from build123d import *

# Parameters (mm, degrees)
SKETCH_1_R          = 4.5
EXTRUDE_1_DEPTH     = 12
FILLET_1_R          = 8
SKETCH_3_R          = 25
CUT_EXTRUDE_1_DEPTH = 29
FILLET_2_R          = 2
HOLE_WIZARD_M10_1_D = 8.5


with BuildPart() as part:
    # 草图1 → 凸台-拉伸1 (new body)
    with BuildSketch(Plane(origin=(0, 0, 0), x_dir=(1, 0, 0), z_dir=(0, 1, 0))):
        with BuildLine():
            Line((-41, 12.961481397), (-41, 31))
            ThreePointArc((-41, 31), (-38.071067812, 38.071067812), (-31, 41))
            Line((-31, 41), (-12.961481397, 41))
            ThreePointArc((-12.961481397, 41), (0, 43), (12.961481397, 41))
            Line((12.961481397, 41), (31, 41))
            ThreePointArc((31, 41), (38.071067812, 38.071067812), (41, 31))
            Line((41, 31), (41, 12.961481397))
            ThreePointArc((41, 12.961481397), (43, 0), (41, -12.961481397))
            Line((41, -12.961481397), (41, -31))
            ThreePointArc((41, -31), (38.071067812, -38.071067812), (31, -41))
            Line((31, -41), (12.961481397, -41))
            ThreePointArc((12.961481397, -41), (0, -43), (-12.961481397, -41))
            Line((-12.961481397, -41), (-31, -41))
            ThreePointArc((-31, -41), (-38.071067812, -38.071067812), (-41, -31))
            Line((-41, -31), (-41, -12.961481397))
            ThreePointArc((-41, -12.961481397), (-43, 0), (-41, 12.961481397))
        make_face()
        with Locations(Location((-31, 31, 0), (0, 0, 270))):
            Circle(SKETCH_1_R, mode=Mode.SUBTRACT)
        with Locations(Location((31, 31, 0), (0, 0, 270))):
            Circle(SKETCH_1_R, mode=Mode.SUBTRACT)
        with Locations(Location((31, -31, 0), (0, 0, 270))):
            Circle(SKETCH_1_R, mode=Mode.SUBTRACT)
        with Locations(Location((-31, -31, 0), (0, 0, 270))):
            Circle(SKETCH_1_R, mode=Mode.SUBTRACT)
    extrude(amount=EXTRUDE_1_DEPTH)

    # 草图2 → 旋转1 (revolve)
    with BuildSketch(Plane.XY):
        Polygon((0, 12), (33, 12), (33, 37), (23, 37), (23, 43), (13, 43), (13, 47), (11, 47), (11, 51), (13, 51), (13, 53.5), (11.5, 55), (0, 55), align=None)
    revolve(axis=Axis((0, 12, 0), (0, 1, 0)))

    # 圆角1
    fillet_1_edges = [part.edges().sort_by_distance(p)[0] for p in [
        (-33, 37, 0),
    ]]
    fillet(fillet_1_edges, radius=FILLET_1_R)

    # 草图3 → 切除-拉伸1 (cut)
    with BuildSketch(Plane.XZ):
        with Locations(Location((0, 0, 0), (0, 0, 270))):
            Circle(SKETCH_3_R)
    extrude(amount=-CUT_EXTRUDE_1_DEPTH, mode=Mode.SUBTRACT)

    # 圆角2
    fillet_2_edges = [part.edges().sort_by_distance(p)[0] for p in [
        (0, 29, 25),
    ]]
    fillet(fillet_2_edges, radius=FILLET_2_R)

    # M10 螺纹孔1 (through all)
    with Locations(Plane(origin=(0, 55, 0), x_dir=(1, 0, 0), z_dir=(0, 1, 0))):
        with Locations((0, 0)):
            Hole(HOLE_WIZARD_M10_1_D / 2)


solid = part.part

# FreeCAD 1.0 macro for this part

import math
import FreeCAD as App
import Part
import Sketcher

V = App.Vector
Q = App.Units.Quantity


def edges_at(feature, points):
    """Names of the edges that pass closest to the given points."""
    edges = feature.Shape.Edges
    near = lambda p: min(range(len(edges)), key=lambda i: edges[i].distToShape(Part.Vertex(*p))[0])
    return sorted({f"Edge{near(p) + 1}" for p in points})

doc = App.newDocument("Part")
params = doc.addObject("Spreadsheet::Sheet", "Params")
for row, (alias, value) in enumerate([
    ("sketch1_diameter", "9 mm"),
    ("sketch1_radius", "43 mm"),
    ("sketch1_radius2", "10 mm"),
    ("pad1_length", "12 mm"),
    ("sketch2_width", "33 mm"),
    ("sketch2_width2", "10 mm"),
    ("sketch2_width3", "2 mm"),
    ("sketch2_height", "25 mm"),
    ("sketch2_height2", "6 mm"),
    ("revolution_angle", "360 deg"),
    ("fillet_radius", "8 mm"),
    ("sketch3_diameter", "50 mm"),
    ("pocket1_length", "29 mm"),
    ("fillet2_radius", "2 mm"),
    ("sketch4_diameter", "8.5 mm"),
    ("hole_diameter", "8.5 mm"),
], start=1):
    params.set(f"A{row}", alias)
    params.set(f"B{row}", "=" + value)
    params.setAlias(f"B{row}", alias)

body = doc.addObject("PartDesign::Body", "Body")

# Sketch on XZ plane
sketch1 = doc.addObject("Sketcher::SketchObject", "Sketch")
body.addObject(sketch1)
sketch1.AttachmentSupport = (doc.XZ_Plane, [""])
sketch1.MapMode = "FlatFace"
sketch1.addGeometry([
    Part.LineSegment(V(-41, -31, 0), V(-41, -13, 0)),  # 0
    Part.ArcOfCircle(Part.Circle(V(0, 0, 0), V(0, 0, 1), 43), math.radians(162), math.radians(198)),  # 1
    Part.LineSegment(V(-41, 13, 0), V(-41, 31, 0)),  # 2
    Part.ArcOfCircle(Part.Circle(V(-31, 31, 0), V(0, 0, 1), 10), math.radians(90), math.radians(180)),  # 3
    Part.LineSegment(V(-31, 41, 0), V(-13, 41, 0)),  # 4
    Part.ArcOfCircle(Part.Circle(V(0, 0, 0), V(0, 0, 1), 43), math.radians(72), math.radians(108)),  # 5
    Part.LineSegment(V(13, 41, 0), V(31, 41, 0)),  # 6
    Part.ArcOfCircle(Part.Circle(V(31, 31, 0), V(0, 0, 1), 10), math.radians(0), math.radians(90)),  # 7
    Part.LineSegment(V(41, 31, 0), V(41, 13, 0)),  # 8
    Part.ArcOfCircle(Part.Circle(V(0, 0, 0), V(0, 0, 1), 43), math.radians(-18), math.radians(18)),  # 9
    Part.LineSegment(V(41, -13, 0), V(41, -31, 0)),  # 10
    Part.ArcOfCircle(Part.Circle(V(31, -31, 0), V(0, 0, 1), 10), math.radians(-90), math.radians(0)),  # 11
    Part.LineSegment(V(31, -41, 0), V(13, -41, 0)),  # 12
    Part.ArcOfCircle(Part.Circle(V(0, 0, 0), V(0, 0, 1), 43), math.radians(-108), math.radians(-72)),  # 13
    Part.LineSegment(V(-13, -41, 0), V(-31, -41, 0)),  # 14
    Part.ArcOfCircle(Part.Circle(V(-31, -31, 0), V(0, 0, 1), 10), math.radians(180), math.radians(270)),  # 15
    Part.Circle(V(31, 31, 0), V(0, 0, 1), 4.5),  # 16
    Part.Circle(V(-31, 31, 0), V(0, 0, 1), 4.5),  # 17
    Part.Circle(V(31, -31, 0), V(0, 0, 1), 4.5),  # 18
    Part.Circle(V(-31, -31, 0), V(0, 0, 1), 4.5),  # 19
], False)
sketch1.addConstraint([
    Sketcher.Constraint("Coincident", 0, 2, 1, 2),
    Sketcher.Constraint("Coincident", 1, 1, 2, 1),
    Sketcher.Constraint("Tangent", 2, 2, 3, 2),
    Sketcher.Constraint("Tangent", 3, 1, 4, 1),
    Sketcher.Constraint("Coincident", 4, 2, 5, 2),
    Sketcher.Constraint("Coincident", 5, 1, 6, 1),
    Sketcher.Constraint("Tangent", 6, 2, 7, 2),
    Sketcher.Constraint("Tangent", 7, 1, 8, 1),
    Sketcher.Constraint("Coincident", 8, 2, 9, 2),
    Sketcher.Constraint("Coincident", 9, 1, 10, 1),
    Sketcher.Constraint("Tangent", 10, 2, 11, 2),
    Sketcher.Constraint("Tangent", 11, 1, 12, 1),
    Sketcher.Constraint("Coincident", 12, 2, 13, 2),
    Sketcher.Constraint("Coincident", 13, 1, 14, 1),
    Sketcher.Constraint("Tangent", 14, 2, 15, 2),
    Sketcher.Constraint("Tangent", 15, 1, 0, 1),
    Sketcher.Constraint("Vertical", 0),
    Sketcher.Constraint("Vertical", 2),
    Sketcher.Constraint("Horizontal", 4),
    Sketcher.Constraint("Horizontal", 6),
    Sketcher.Constraint("Vertical", 8),
    Sketcher.Constraint("Vertical", 10),
    Sketcher.Constraint("Horizontal", 12),
    Sketcher.Constraint("Horizontal", 14),
    Sketcher.Constraint("Coincident", 1, 3, -1, 1),
    Sketcher.Constraint("Coincident", 5, 3, -1, 1),
    Sketcher.Constraint("Coincident", 9, 3, -1, 1),
    Sketcher.Constraint("Coincident", 13, 3, -1, 1),
    Sketcher.Constraint("Coincident", 16, 3, 7, 3),
    Sketcher.Constraint("Coincident", 17, 3, 3, 3),
    Sketcher.Constraint("Coincident", 18, 3, 11, 3),
    Sketcher.Constraint("Coincident", 19, 3, 15, 3),
    Sketcher.Constraint("Equal", 1, 5),
    Sketcher.Constraint("Equal", 3, 7),
    Sketcher.Constraint("Equal", 5, 9),
    Sketcher.Constraint("Equal", 7, 11),
    Sketcher.Constraint("Equal", 9, 13),
    Sketcher.Constraint("Equal", 11, 15),
    Sketcher.Constraint("Equal", 16, 17),
    Sketcher.Constraint("Equal", 17, 18),
    Sketcher.Constraint("Equal", 18, 19),
    Sketcher.Constraint("Symmetric", 3, 3, 11, 3, -1, 1),
    Sketcher.Constraint("Symmetric", 7, 3, 15, 3, -1, 1),
    Sketcher.Constraint("Symmetric", 3, 3, 7, 3, -2),
    Sketcher.Constraint("Equal", 14, 0),
    Sketcher.Constraint("Diameter", 16, Q("9 mm")),
    Sketcher.Constraint("Radius", 1, Q("43 mm")),
    Sketcher.Constraint("Radius", 3, Q("10 mm")),
    Sketcher.Constraint("DistanceX", 3, 3, -1, 1, Q("31 mm")),
])
sketch1.setExpression("Constraints[45]", "Params.sketch1_diameter")
sketch1.setExpression("Constraints[46]", "Params.sketch1_radius")
sketch1.setExpression("Constraints[47]", "Params.sketch1_radius2")
pad1 = doc.addObject("PartDesign::Pad", "Pad")
body.addObject(pad1)
pad1.Profile = sketch1
pad1.setExpression("Length", "Params.pad1_length")
pad1.Reversed = True

# Sketch on XY plane
sketch2 = doc.addObject("Sketcher::SketchObject", "Sketch001")
body.addObject(sketch2)
sketch2.AttachmentSupport = (doc.XY_Plane, [""])
sketch2.MapMode = "FlatFace"
sketch2.addGeometry([
    Part.LineSegment(V(0, 12, 0), V(33, 12, 0)),  # 0
    Part.LineSegment(V(33, 12, 0), V(33, 37, 0)),  # 1
    Part.LineSegment(V(33, 37, 0), V(23, 37, 0)),  # 2
    Part.LineSegment(V(23, 37, 0), V(23, 43, 0)),  # 3
    Part.LineSegment(V(23, 43, 0), V(13, 43, 0)),  # 4
    Part.LineSegment(V(13, 43, 0), V(13, 47, 0)),  # 5
    Part.LineSegment(V(13, 47, 0), V(11, 47, 0)),  # 6
    Part.LineSegment(V(11, 47, 0), V(11, 51, 0)),  # 7
    Part.LineSegment(V(11, 51, 0), V(13, 51, 0)),  # 8
    Part.LineSegment(V(13, 51, 0), V(13, 53.5, 0)),  # 9
    Part.LineSegment(V(13, 53.5, 0), V(11.5, 55, 0)),  # 10
    Part.LineSegment(V(11.5, 55, 0), V(0, 55, 0)),  # 11
    Part.LineSegment(V(0, 55, 0), V(0, 12, 0)),  # 12
], False)
sketch2.addConstraint([
    Sketcher.Constraint("Coincident", 0, 2, 1, 1),
    Sketcher.Constraint("Coincident", 1, 2, 2, 1),
    Sketcher.Constraint("Coincident", 2, 2, 3, 1),
    Sketcher.Constraint("Coincident", 3, 2, 4, 1),
    Sketcher.Constraint("Coincident", 4, 2, 5, 1),
    Sketcher.Constraint("Coincident", 5, 2, 6, 1),
    Sketcher.Constraint("Coincident", 6, 2, 7, 1),
    Sketcher.Constraint("Coincident", 7, 2, 8, 1),
    Sketcher.Constraint("Coincident", 8, 2, 9, 1),
    Sketcher.Constraint("Coincident", 9, 2, 10, 1),
    Sketcher.Constraint("Coincident", 10, 2, 11, 1),
    Sketcher.Constraint("Coincident", 11, 2, 12, 1),
    Sketcher.Constraint("Coincident", 12, 2, 0, 1),
    Sketcher.Constraint("Horizontal", 0),
    Sketcher.Constraint("Vertical", 1),
    Sketcher.Constraint("Horizontal", 2),
    Sketcher.Constraint("Vertical", 3),
    Sketcher.Constraint("Horizontal", 4),
    Sketcher.Constraint("Vertical", 5),
    Sketcher.Constraint("Horizontal", 6),
    Sketcher.Constraint("Vertical", 7),
    Sketcher.Constraint("Horizontal", 8),
    Sketcher.Constraint("Vertical", 9),
    Sketcher.Constraint("Horizontal", 11),
    Sketcher.Constraint("Vertical", 12),
    Sketcher.Constraint("PointOnObject", 11, 2, -2),
    Sketcher.Constraint("Vertical", 5, 2, 8, 2),
    Sketcher.Constraint("Equal", 2, 4),
    Sketcher.Constraint("Equal", 5, 7),
    Sketcher.Constraint("DistanceX", 0, 1, 0, 2, Q("33 mm")),
    Sketcher.Constraint("DistanceX", 2, 2, 2, 1, Q("10 mm")),
    Sketcher.Constraint("DistanceX", 6, 2, 6, 1, Q("2 mm")),
    Sketcher.Constraint("DistanceY", 1, 1, 1, 2, Q("25 mm")),
    Sketcher.Constraint("DistanceY", 3, 1, 3, 2, Q("6 mm")),
    Sketcher.Constraint("DistanceY", 5, 1, 5, 2, Q("4 mm")),
    Sketcher.Constraint("DistanceY", 12, 2, 12, 1, Q("43 mm")),
    Sketcher.Constraint("Angle", 10, Q("135 deg")),
    Sketcher.Constraint("DistanceX", 11, 2, 11, 1, Q("11.5 mm")),
    Sketcher.Constraint("DistanceY", -1, 1, 0, 2, Q("12 mm")),
])
sketch2.setExpression("Constraints[29]", "Params.sketch2_width")
sketch2.setExpression("Constraints[30]", "Params.sketch2_width2")
sketch2.setExpression("Constraints[31]", "Params.sketch2_width3")
sketch2.setExpression("Constraints[32]", "Params.sketch2_height")
sketch2.setExpression("Constraints[33]", "Params.sketch2_height2")
revolution = doc.addObject("PartDesign::Revolution", "Revolution")
body.addObject(revolution)
revolution.Profile = sketch2
revolution.ReferenceAxis = (sketch2, ["V_Axis"])
revolution.setExpression("Angle", "Params.revolution_angle")
doc.recompute()

fillet = doc.addObject("PartDesign::Fillet", "Fillet")
body.addObject(fillet)
fillet.Base = (revolution, edges_at(revolution, [(-33, 37, 0)]))
fillet.setExpression("Radius", "Params.fillet_radius")

# Sketch on XZ plane
sketch3 = doc.addObject("Sketcher::SketchObject", "Sketch002")
body.addObject(sketch3)
sketch3.AttachmentSupport = (doc.XZ_Plane, [""])
sketch3.MapMode = "FlatFace"
sketch3.addGeometry(Part.Circle(V(0, 0, 0), V(0, 0, 1), 25), False)
sketch3.addConstraint([
    Sketcher.Constraint("Coincident", 0, 3, -1, 1),
    Sketcher.Constraint("Diameter", 0, Q("50 mm")),
])
sketch3.setExpression("Constraints[1]", "Params.sketch3_diameter")
pocket1 = doc.addObject("PartDesign::Pocket", "Pocket")
body.addObject(pocket1)
pocket1.Profile = sketch3
pocket1.setExpression("Length", "Params.pocket1_length")
doc.recompute()

fillet2 = doc.addObject("PartDesign::Fillet", "Fillet001")
body.addObject(fillet2)
fillet2.Base = (pocket1, edges_at(pocket1, [(0, 29, 25)]))
fillet2.setExpression("Radius", "Params.fillet2_radius")

# Sketch on XZ plane
sketch4 = doc.addObject("Sketcher::SketchObject", "Sketch003")
body.addObject(sketch4)
sketch4.AttachmentSupport = (doc.XZ_Plane, [""])
sketch4.MapMode = "FlatFace"
sketch4.AttachmentOffset = App.Placement(V(0, 0, -55), App.Rotation())
sketch4.addGeometry(Part.Circle(V(0, 0, 0), V(0, 0, 1), 4.2), False)
sketch4.addConstraint([
    Sketcher.Constraint("Coincident", 0, 3, -1, 1),
    Sketcher.Constraint("Diameter", 0, Q("8.5 mm")),
])
sketch4.setExpression("Constraints[1]", "Params.sketch4_diameter")
doc.recompute()
hole = doc.addObject("PartDesign::Hole", "Hole")
body.addObject(hole)
hole.Profile = sketch4
hole.ThreadType = "None"
hole.setExpression("Diameter", "Params.hole_diameter")
hole.DepthType = "ThroughAll"
hole.Reversed = True

doc.recompute()
